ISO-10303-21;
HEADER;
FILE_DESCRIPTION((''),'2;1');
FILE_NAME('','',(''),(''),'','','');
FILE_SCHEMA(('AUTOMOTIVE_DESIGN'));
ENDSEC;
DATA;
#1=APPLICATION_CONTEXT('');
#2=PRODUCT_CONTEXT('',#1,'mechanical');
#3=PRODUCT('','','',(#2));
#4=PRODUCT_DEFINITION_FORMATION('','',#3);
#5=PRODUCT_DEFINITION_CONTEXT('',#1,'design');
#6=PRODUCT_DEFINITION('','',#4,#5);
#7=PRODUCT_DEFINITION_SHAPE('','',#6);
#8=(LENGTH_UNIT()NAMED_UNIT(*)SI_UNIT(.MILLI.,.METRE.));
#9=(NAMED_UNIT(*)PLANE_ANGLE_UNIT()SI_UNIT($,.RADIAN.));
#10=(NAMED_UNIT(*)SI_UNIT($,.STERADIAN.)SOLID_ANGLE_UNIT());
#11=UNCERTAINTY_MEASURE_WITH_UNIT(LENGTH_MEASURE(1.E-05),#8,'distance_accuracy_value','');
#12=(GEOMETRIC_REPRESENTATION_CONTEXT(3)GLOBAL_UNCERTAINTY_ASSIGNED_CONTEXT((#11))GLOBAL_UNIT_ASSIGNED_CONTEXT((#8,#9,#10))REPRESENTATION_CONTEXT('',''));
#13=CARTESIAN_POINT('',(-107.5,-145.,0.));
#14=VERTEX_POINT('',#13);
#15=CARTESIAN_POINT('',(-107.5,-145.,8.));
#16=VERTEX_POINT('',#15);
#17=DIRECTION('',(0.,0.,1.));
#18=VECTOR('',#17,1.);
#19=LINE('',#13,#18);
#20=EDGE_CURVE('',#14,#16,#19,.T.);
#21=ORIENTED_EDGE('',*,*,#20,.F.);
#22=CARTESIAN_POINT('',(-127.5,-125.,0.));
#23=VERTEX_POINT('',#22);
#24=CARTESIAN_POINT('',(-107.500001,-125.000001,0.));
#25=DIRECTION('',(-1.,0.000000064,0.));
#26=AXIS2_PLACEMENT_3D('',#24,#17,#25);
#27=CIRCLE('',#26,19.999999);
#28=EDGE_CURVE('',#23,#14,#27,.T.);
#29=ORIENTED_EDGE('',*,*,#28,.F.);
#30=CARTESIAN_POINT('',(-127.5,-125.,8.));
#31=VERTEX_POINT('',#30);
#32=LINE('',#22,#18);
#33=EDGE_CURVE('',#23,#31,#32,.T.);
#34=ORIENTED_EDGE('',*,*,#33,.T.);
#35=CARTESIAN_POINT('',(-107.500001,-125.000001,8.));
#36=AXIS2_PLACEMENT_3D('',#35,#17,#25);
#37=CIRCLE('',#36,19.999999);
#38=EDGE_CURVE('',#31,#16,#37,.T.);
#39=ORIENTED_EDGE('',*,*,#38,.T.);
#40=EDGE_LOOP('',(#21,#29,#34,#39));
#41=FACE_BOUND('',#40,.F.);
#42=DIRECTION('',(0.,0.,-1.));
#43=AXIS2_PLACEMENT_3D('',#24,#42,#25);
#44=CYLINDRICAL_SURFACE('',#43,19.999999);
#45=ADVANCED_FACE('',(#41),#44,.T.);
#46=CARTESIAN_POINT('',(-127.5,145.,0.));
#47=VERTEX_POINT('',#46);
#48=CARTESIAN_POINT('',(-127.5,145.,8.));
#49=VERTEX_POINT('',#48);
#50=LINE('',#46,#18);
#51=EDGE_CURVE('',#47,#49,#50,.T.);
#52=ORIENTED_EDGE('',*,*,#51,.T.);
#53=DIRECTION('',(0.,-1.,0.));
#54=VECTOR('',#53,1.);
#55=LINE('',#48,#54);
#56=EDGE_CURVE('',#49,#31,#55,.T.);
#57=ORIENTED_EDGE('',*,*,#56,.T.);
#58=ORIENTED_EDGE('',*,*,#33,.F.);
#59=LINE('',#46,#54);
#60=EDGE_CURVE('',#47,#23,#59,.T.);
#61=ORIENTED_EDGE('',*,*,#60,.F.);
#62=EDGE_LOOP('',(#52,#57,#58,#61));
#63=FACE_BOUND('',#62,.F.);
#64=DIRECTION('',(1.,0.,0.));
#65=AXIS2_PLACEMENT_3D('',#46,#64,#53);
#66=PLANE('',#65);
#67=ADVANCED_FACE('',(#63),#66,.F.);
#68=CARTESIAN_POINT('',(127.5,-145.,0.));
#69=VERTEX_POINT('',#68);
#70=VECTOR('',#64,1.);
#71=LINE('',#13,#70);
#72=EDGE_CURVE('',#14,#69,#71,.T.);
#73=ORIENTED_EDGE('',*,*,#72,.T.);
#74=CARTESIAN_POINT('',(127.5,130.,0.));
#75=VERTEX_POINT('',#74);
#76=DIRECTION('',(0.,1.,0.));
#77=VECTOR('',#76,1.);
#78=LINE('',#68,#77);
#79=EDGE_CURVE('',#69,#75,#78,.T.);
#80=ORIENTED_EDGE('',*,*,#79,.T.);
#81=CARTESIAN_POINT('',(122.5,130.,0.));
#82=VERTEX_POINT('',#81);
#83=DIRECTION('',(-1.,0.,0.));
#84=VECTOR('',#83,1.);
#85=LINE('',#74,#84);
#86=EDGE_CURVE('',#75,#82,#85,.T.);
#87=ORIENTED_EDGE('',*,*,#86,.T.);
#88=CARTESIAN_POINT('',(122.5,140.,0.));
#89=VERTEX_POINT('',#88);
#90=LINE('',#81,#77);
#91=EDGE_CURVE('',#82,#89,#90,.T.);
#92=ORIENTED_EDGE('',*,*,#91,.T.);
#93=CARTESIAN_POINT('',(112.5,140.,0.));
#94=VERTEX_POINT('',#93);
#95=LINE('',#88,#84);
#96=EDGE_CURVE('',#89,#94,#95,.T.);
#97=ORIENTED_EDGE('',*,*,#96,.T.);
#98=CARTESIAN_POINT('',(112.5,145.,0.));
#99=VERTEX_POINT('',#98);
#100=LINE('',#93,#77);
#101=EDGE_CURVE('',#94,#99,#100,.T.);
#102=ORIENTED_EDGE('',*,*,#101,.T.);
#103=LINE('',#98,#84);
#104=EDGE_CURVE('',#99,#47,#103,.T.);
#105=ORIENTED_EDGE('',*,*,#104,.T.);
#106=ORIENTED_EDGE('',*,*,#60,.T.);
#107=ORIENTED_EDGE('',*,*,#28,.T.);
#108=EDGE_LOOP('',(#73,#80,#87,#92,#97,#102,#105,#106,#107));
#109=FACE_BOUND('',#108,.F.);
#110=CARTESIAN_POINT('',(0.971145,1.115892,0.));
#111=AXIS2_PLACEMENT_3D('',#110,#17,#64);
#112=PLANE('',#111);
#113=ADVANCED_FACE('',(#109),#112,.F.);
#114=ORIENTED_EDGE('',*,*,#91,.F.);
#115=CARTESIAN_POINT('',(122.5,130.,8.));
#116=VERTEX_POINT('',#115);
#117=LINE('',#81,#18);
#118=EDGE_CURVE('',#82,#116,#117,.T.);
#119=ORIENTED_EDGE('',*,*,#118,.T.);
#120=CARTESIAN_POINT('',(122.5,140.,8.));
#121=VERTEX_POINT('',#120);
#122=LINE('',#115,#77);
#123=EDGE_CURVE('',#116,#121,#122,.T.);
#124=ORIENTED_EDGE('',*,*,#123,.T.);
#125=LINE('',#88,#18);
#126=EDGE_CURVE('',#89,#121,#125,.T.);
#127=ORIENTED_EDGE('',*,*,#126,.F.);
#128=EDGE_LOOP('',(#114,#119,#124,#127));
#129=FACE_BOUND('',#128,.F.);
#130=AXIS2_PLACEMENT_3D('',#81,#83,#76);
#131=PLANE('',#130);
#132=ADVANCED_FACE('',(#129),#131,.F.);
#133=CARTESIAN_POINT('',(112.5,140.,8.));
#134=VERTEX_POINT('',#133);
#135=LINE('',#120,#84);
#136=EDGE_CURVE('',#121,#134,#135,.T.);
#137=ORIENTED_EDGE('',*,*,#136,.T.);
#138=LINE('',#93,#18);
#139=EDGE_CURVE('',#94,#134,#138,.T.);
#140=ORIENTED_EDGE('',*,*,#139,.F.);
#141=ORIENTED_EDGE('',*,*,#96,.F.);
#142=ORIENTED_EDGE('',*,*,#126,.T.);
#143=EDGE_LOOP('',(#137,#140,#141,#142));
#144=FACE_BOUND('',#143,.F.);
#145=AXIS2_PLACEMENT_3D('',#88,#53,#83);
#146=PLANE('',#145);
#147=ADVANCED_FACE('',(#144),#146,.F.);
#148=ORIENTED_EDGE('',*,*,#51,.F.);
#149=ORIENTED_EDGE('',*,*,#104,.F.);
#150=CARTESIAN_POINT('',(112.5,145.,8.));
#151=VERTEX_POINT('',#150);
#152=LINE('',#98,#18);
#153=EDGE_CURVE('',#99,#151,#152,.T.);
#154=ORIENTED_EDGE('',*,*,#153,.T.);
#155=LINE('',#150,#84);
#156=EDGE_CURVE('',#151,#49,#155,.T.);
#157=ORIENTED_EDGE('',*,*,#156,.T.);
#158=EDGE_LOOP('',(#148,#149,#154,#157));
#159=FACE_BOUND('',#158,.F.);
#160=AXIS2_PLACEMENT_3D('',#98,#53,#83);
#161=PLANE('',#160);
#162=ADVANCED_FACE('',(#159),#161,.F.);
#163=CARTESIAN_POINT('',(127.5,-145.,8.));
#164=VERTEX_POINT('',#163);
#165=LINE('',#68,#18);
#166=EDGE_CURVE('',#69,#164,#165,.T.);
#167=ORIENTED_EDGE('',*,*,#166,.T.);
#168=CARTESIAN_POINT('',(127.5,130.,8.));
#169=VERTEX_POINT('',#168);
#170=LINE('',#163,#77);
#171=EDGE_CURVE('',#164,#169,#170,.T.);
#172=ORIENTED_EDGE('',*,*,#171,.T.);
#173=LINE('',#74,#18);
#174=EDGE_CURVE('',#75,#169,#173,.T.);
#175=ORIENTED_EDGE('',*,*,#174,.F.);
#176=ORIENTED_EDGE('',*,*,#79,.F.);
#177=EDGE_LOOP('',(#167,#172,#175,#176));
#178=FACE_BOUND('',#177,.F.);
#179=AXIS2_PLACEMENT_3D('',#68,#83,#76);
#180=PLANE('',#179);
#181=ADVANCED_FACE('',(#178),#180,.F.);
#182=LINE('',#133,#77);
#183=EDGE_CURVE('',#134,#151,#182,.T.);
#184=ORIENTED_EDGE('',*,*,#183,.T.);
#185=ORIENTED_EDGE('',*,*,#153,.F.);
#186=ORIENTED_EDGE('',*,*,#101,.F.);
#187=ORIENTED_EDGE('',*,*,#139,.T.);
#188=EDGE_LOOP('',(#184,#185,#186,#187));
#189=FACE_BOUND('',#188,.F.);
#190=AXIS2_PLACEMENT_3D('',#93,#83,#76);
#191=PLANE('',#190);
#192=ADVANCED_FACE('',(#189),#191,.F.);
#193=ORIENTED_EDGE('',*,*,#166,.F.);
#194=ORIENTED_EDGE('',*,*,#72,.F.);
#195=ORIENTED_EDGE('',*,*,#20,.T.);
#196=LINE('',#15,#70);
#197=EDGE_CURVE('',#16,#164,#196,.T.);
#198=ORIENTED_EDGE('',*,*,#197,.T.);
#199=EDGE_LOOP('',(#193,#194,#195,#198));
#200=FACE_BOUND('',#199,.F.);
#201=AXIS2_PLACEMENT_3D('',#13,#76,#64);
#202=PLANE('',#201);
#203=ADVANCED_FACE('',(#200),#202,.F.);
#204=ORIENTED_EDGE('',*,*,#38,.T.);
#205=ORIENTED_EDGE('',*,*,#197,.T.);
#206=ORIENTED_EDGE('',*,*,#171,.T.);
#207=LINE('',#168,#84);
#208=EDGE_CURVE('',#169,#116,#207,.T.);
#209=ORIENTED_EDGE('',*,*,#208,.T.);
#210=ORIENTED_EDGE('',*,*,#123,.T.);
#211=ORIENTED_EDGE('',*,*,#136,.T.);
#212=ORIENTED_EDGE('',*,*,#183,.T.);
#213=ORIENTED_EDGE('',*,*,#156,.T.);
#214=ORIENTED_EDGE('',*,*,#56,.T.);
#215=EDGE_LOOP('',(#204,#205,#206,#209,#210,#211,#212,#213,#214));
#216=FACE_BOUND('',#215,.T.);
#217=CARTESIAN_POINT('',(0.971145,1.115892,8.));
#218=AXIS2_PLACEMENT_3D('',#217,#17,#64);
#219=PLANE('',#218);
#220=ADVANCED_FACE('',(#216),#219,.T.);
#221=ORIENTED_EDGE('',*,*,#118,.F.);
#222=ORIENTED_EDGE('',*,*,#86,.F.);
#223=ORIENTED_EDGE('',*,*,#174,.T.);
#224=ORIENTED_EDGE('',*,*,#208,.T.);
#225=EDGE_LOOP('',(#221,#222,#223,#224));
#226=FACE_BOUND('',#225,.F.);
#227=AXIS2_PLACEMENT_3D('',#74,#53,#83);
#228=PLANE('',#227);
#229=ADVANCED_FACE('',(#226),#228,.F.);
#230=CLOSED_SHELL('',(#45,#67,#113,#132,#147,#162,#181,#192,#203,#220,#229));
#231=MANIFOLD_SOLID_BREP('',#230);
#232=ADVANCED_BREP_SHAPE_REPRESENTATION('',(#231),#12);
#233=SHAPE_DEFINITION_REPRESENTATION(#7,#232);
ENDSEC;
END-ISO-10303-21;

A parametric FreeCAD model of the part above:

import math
import FreeCAD as App
import Part
import Sketcher
Q = App.Units.Quantity

doc = App.newDocument("Part")
body = doc.addObject("PartDesign::Body", "Body")

sketch1 = doc.addObject("Sketcher::SketchObject", "Sketch")
body.addObject(sketch1)
sketch1.AttachmentSupport = (doc.XY_Plane, [""])
sketch1.MapMode = "FlatFace"
sketch1.addGeometry(Part.LineSegment(App.Vector(112, 140, 0), App.Vector(112, 145, 0)), False)
sketch1.addGeometry(Part.LineSegment(App.Vector(112, 145, 0), App.Vector(-128, 145, 0)), False)
sketch1.addGeometry(Part.LineSegment(App.Vector(-128, 145, 0), App.Vector(-128, -125, 0)), False)
sketch1.addGeometry(Part.ArcOfCircle(Part.Circle(App.Vector(-108, -125, 0), App.Vector(0, 0, 1), 20), math.radians(180), math.radians(270)), False)
sketch1.addGeometry(Part.LineSegment(App.Vector(-108, -145, 0), App.Vector(128, -145, 0)), False)
sketch1.addGeometry(Part.LineSegment(App.Vector(128, -145, 0), App.Vector(128, 130, 0)), False)
sketch1.addGeometry(Part.LineSegment(App.Vector(128, 130, 0), App.Vector(122, 130, 0)), False)
sketch1.addGeometry(Part.LineSegment(App.Vector(122, 130, 0), App.Vector(122, 140, 0)), False)
sketch1.addGeometry(Part.LineSegment(App.Vector(122, 140, 0), App.Vector(112, 140, 0)), False)
sketch1.addConstraint(Sketcher.Constraint("Coincident", 0, 2, 1, 1))
sketch1.addConstraint(Sketcher.Constraint("Coincident", 1, 2, 2, 1))
sketch1.addConstraint(Sketcher.Constraint("Tangent", 2, 2, 3, 1))
sketch1.addConstraint(Sketcher.Constraint("Tangent", 3, 2, 4, 1))
sketch1.addConstraint(Sketcher.Constraint("Coincident", 4, 2, 5, 1))
sketch1.addConstraint(Sketcher.Constraint("Coincident", 5, 2, 6, 1))
sketch1.addConstraint(Sketcher.Constraint("Coincident", 6, 2, 7, 1))
sketch1.addConstraint(Sketcher.Constraint("Coincident", 7, 2, 8, 1))
sketch1.addConstraint(Sketcher.Constraint("Coincident", 8, 2, 0, 1))
sketch1.addConstraint(Sketcher.Constraint("Vertical", 0))
sketch1.addConstraint(Sketcher.Constraint("Horizontal", 1))
sketch1.addConstraint(Sketcher.Constraint("Vertical", 2))
sketch1.addConstraint(Sketcher.Constraint("Horizontal", 4))
sketch1.addConstraint(Sketcher.Constraint("Vertical", 5))
sketch1.addConstraint(Sketcher.Constraint("Horizontal", 6))
sketch1.addConstraint(Sketcher.Constraint("Vertical", 7))
sketch1.addConstraint(Sketcher.Constraint("Horizontal", 8))
sketch1.addConstraint(Sketcher.Constraint("Symmetric", 1, 2, 4, 2, -1, 1))
sketch1.addConstraint(Sketcher.Constraint("Equal", 6, 0))
sketch1.addConstraint(Sketcher.Constraint("Equal", 8, 7))
sketch1.addConstraint(Sketcher.Constraint("Radius", 3, Q("19.999999 mm")))
sketch1.addConstraint(Sketcher.Constraint("DistanceX", 1, 2, 1, 1, Q("240 mm")))
sketch1.addConstraint(Sketcher.Constraint("DistanceX", 4, 1, 4, 2, Q("235 mm")))
sketch1.addConstraint(Sketcher.Constraint("DistanceX", 6, 2, 6, 1, Q("5 mm")))
sketch1.addConstraint(Sketcher.Constraint("DistanceY", 2, 2, 2, 1, Q("270 mm")))
pad1 = doc.addObject("PartDesign::Pad", "Pad")
body.addObject(pad1)
pad1.Profile = sketch1
pad1.Length = 8

doc.recompute()
